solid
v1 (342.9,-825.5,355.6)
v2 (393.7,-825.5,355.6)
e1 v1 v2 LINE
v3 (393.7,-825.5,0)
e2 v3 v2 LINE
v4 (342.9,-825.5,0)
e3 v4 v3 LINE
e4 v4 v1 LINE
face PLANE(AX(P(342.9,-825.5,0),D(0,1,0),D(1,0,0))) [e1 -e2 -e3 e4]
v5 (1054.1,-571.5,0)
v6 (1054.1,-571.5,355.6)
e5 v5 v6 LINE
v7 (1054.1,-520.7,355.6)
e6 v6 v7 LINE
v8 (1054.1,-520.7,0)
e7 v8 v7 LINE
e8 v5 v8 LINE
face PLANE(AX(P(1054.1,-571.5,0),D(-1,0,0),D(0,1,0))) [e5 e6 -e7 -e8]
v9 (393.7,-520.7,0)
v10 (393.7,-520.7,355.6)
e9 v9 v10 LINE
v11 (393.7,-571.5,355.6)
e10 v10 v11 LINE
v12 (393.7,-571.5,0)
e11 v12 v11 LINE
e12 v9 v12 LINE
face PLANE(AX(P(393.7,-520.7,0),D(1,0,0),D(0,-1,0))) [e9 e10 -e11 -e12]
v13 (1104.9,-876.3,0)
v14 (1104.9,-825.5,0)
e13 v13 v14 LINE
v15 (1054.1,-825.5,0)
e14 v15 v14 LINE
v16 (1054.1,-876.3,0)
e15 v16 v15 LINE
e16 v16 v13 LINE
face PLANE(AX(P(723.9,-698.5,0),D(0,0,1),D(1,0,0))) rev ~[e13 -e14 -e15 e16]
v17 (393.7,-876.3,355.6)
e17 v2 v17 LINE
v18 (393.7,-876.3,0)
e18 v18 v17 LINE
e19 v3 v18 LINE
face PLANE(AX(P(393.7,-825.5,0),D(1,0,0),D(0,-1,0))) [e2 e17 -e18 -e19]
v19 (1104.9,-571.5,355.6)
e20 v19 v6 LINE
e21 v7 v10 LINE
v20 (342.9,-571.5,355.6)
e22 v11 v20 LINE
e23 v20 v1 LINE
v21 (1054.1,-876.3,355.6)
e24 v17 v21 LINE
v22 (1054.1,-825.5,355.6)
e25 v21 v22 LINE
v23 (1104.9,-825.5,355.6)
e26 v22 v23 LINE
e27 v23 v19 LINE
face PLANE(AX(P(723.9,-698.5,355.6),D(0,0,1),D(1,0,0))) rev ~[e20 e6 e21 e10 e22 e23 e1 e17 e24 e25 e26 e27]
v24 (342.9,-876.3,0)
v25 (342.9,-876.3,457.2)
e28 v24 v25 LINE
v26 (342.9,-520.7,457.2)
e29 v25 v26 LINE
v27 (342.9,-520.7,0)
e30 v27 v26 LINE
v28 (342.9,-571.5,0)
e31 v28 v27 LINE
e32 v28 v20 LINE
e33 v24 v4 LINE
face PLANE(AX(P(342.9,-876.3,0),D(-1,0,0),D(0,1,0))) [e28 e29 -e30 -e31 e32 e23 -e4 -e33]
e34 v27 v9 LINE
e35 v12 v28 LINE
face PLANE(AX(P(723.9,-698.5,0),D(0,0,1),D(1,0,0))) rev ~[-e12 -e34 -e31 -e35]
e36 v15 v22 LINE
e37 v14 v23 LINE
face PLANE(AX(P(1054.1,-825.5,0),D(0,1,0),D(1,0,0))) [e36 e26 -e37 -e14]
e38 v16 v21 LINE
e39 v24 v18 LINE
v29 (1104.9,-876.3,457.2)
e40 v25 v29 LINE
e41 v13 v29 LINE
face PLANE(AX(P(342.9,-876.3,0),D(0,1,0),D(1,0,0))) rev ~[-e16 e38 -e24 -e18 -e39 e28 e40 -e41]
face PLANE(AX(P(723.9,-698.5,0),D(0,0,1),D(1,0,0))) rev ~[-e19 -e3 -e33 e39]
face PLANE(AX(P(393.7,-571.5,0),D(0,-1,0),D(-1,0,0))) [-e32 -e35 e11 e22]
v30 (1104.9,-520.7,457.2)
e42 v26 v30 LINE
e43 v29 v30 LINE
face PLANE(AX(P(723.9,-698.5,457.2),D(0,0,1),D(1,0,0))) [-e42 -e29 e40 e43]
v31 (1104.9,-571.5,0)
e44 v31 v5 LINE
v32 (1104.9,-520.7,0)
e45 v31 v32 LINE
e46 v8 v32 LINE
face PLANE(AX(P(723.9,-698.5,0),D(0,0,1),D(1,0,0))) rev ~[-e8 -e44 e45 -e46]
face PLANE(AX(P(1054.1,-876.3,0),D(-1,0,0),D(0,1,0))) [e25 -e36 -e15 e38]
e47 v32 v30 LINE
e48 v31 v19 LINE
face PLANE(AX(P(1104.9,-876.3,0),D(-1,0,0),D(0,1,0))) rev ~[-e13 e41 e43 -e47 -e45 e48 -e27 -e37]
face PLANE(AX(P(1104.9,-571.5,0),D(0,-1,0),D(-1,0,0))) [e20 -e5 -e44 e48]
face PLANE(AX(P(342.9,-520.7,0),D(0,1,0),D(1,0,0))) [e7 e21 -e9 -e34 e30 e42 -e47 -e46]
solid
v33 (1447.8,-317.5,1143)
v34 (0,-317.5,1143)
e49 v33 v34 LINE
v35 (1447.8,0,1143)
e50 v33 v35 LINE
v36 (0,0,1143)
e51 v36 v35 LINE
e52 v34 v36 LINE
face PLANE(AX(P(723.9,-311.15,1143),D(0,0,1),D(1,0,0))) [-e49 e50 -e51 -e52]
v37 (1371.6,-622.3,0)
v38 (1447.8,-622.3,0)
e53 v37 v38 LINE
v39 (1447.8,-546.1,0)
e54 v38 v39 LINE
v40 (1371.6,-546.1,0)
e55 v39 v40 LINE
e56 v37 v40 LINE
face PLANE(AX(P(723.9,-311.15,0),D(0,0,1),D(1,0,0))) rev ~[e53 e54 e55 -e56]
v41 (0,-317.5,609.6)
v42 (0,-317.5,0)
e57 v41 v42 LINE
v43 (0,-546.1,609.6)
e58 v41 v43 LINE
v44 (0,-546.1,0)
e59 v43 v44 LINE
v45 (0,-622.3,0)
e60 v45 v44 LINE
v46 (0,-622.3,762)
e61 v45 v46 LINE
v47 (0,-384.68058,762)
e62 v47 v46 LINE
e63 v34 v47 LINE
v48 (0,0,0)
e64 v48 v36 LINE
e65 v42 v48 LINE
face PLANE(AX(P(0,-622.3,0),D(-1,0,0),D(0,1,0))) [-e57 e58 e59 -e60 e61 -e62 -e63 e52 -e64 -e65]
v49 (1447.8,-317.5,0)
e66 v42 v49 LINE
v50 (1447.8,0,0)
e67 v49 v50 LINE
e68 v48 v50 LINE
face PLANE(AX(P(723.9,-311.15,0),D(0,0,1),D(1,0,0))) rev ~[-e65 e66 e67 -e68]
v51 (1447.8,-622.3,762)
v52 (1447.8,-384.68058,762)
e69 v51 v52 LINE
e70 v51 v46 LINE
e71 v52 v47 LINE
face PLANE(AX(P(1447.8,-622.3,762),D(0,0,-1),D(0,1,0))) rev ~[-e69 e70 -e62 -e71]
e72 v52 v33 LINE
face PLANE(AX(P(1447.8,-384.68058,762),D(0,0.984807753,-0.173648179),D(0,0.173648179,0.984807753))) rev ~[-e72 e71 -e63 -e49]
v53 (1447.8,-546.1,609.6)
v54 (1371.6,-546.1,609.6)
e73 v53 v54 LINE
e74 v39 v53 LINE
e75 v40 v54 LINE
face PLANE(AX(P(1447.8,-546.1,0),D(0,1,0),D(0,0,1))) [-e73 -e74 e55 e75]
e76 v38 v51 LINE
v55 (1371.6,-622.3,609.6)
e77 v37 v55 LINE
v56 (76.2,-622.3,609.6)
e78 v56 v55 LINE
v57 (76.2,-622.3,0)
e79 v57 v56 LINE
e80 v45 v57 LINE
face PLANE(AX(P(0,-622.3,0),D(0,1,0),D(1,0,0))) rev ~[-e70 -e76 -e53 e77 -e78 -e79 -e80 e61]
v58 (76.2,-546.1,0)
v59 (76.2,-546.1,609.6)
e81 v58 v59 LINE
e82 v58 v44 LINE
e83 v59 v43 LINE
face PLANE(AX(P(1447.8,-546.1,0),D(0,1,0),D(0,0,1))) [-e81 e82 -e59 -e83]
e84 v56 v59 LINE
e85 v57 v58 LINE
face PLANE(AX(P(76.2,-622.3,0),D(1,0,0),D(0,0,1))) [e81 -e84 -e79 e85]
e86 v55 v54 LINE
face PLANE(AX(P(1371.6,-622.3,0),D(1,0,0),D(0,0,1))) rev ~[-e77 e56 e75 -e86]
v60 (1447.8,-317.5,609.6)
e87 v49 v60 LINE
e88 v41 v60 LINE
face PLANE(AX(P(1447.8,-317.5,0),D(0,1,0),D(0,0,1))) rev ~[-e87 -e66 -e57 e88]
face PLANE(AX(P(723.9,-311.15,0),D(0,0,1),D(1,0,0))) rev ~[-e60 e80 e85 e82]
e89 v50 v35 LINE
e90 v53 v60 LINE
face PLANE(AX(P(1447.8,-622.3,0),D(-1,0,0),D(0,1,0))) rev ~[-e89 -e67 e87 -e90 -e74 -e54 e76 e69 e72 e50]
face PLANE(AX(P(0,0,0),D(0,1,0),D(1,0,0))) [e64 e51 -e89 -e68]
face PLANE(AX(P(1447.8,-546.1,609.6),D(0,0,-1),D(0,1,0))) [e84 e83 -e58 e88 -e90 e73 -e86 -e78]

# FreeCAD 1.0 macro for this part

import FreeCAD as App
import Part
import Sketcher
Q = App.Units.Quantity


def add_polygon(sketch, points):
    """Adds a closed chain of lines whose ends are joined by coincident constraints."""
    first, n = sketch.GeometryCount, len(points)
    for a, b in zip(points, points[1:] + points[:1]):
        sketch.addGeometry(Part.LineSegment(App.Vector(*a, 0), App.Vector(*b, 0)), False)
    for i in range(n):
        sketch.addConstraint(Sketcher.Constraint("Coincident", first + i, 2, first + (i + 1) % n, 1))

doc = App.newDocument("Part")
params = doc.addObject("Spreadsheet::Sheet", "Params")
for row, (alias, value) in enumerate([
    ("sketch1_width", "57 in"),
    ("sketch1_height", "24.5 in"),
    ("pad1_length", "45 in"),
    ("sketch2_width", "12 in"),
    ("sketch2_height", "15 in"),
    ("sketch3_width", "51 in"),
    ("sketch3_height", "24 in"),
    ("pocket2_length", "12 in"),
    ("sketch4_width", "9 in"),
    ("sketch4_height", "24 in"),
    ("sketch5_width", "30 in"),
    ("sketch5_height", "14 in"),
    ("pad2_length", "18 in"),
    ("sketch6_width", "2 in"),
    ("sketch6_width2", "26 in"),
    ("sketch6_height", "10 in"),
    ("pocket4_length", "14 in"),
], start=1):
    params.set(f"A{row}", alias)
    params.set(f"B{row}", "=" + value)
    params.setAlias(f"B{row}", alias)

body = doc.addObject("PartDesign::Body", "Body")

sketch1 = doc.addObject("Sketcher::SketchObject", "Sketch")
body.addObject(sketch1)
sketch1.AttachmentSupport = (doc.XY_Plane, [""])
sketch1.MapMode = "FlatFace"
add_polygon(sketch1, [(0, 0), (0, -622), (1448, -622), (1448, 0)])
sketch1.addConstraint(Sketcher.Constraint("Vertical", 0))
sketch1.addConstraint(Sketcher.Constraint("Horizontal", 1))
sketch1.addConstraint(Sketcher.Constraint("Vertical", 2))
sketch1.addConstraint(Sketcher.Constraint("Horizontal", 3))
sketch1.addConstraint(Sketcher.Constraint("Coincident", 3, 2, -1, 1))
sketch1.addConstraint(Sketcher.Constraint("DistanceX", 1, 1, 1, 2, Q("57 in")))
sketch1.addConstraint(Sketcher.Constraint("DistanceY", 0, 2, 0, 1, Q("24.5 in")))
sketch1.setExpression("Constraints[9]", "Params.sketch1_width")
sketch1.setExpression("Constraints[10]", "Params.sketch1_height")
pad1 = doc.addObject("PartDesign::Pad", "Pad")
body.addObject(pad1)
pad1.Profile = sketch1
pad1.setExpression("Length", "Params.pad1_length")

sketch2 = doc.addObject("Sketcher::SketchObject", "Sketch001")
body.addObject(sketch2)
sketch2.AttachmentSupport = (doc.YZ_Plane, [""])
sketch2.MapMode = "FlatFace"
sketch2.AttachmentOffset = App.Placement(App.Vector(0, 0, 57 * 25.4), App.Rotation())
add_polygon(sketch2, [(-318, 1143), (-622, 1143), (-622, 762), (-385, 762)])
sketch2.addConstraint(Sketcher.Constraint("Horizontal", 0))
sketch2.addConstraint(Sketcher.Constraint("Vertical", 1))
sketch2.addConstraint(Sketcher.Constraint("Horizontal", 2))
sketch2.addConstraint(Sketcher.Constraint("DistanceX", 0, 2, 0, 1, Q("12 in")))
sketch2.addConstraint(Sketcher.Constraint("DistanceY", 1, 2, 1, 1, Q("15 in")))
sketch2.addConstraint(Sketcher.Constraint("DistanceY", -1, 1, 0, 2, Q("45 in")))
sketch2.addConstraint(Sketcher.Constraint("Angle", 3, Q("80 deg")))
sketch2.addConstraint(Sketcher.Constraint("DistanceX", 0, 2, -1, 1, Q("24.5 in")))
sketch2.setExpression("Constraints[7]", "Params.sketch2_width")
sketch2.setExpression("Constraints[8]", "Params.sketch2_height")
pocket1 = doc.addObject("PartDesign::Pocket", "Pocket")
body.addObject(pocket1)
pocket1.Profile = sketch2
pocket1.Type = "ThroughAll"

sketch3 = doc.addObject("Sketcher::SketchObject", "Sketch002")
body.addObject(sketch3)
sketch3.AttachmentSupport = (doc.XZ_Plane, [""])
sketch3.MapMode = "FlatFace"
sketch3.AttachmentOffset = App.Placement(App.Vector(0, 0, 24.5 * 25.4), App.Rotation())
add_polygon(sketch3, [(76, 610), (76, 0), (1372, 0), (1372, 610)])
sketch3.addConstraint(Sketcher.Constraint("Vertical", 0))
sketch3.addConstraint(Sketcher.Constraint("Horizontal", 1))
sketch3.addConstraint(Sketcher.Constraint("Vertical", 2))
sketch3.addConstraint(Sketcher.Constraint("Horizontal", 3))
sketch3.addConstraint(Sketcher.Constraint("PointOnObject", 0, 2, -1))
sketch3.addConstraint(Sketcher.Constraint("DistanceX", 1, 1, 1, 2, Q("51 in")))
sketch3.addConstraint(Sketcher.Constraint("DistanceY", 0, 2, 0, 1, Q("24 in")))
sketch3.addConstraint(Sketcher.Constraint("DistanceX", -1, 1, 0, 2, Q("3 in")))
sketch3.setExpression("Constraints[9]", "Params.sketch3_width")
sketch3.setExpression("Constraints[10]", "Params.sketch3_height")
pocket2 = doc.addObject("PartDesign::Pocket", "Pocket001")
body.addObject(pocket2)
pocket2.Profile = sketch3
pocket2.setExpression("Length", "Params.pocket2_length")

sketch4 = doc.addObject("Sketcher::SketchObject", "Sketch003")
body.addObject(sketch4)
sketch4.AttachmentSupport = (doc.YZ_Plane, [""])
sketch4.MapMode = "FlatFace"
sketch4.AttachmentOffset = App.Placement(App.Vector(0, 0, 57 * 25.4), App.Rotation())
add_polygon(sketch4, [(-546, 610), (-546, 0), (-318, 0), (-318, 610)])
sketch4.addConstraint(Sketcher.Constraint("Vertical", 0))
sketch4.addConstraint(Sketcher.Constraint("Horizontal", 1))
sketch4.addConstraint(Sketcher.Constraint("Vertical", 2))
sketch4.addConstraint(Sketcher.Constraint("Horizontal", 3))
sketch4.addConstraint(Sketcher.Constraint("PointOnObject", 0, 2, -1))
sketch4.addConstraint(Sketcher.Constraint("DistanceX", 1, 1, 1, 2, Q("9 in")))
sketch4.addConstraint(Sketcher.Constraint("DistanceY", 0, 2, 0, 1, Q("24 in")))
sketch4.addConstraint(Sketcher.Constraint("DistanceX", 0, 2, -1, 1, Q("21.5 in")))
sketch4.setExpression("Constraints[9]", "Params.sketch4_width")
sketch4.setExpression("Constraints[10]", "Params.sketch4_height")
pocket3 = doc.addObject("PartDesign::Pocket", "Pocket002")
body.addObject(pocket3)
pocket3.Profile = sketch4
pocket3.Type = "ThroughAll"
body2 = doc.addObject("PartDesign::Body", "Body001")

sketch5 = doc.addObject("Sketcher::SketchObject", "Sketch004")
body2.addObject(sketch5)
sketch5.AttachmentSupport = (doc.getObject("XY_Plane001"), [""])
sketch5.MapMode = "FlatFace"
add_polygon(sketch5, [(343, -521), (343, -876), (1105, -876), (1105, -521)])
sketch5.addConstraint(Sketcher.Constraint("Vertical", 0))
sketch5.addConstraint(Sketcher.Constraint("Horizontal", 1))
sketch5.addConstraint(Sketcher.Constraint("Vertical", 2))
sketch5.addConstraint(Sketcher.Constraint("Horizontal", 3))
sketch5.addConstraint(Sketcher.Constraint("DistanceX", 1, 1, 1, 2, Q("30 in")))
sketch5.addConstraint(Sketcher.Constraint("DistanceY", 0, 2, 0, 1, Q("14 in")))
sketch5.addConstraint(Sketcher.Constraint("DistanceX", -1, 1, 0, 2, Q("13.5 in")))
sketch5.addConstraint(Sketcher.Constraint("DistanceY", 0, 2, -1, 1, Q("34.5 in")))
sketch5.setExpression("Constraints[8]", "Params.sketch5_width")
sketch5.setExpression("Constraints[9]", "Params.sketch5_height")
pad2 = doc.addObject("PartDesign::Pad", "Pad001")
body2.addObject(pad2)
pad2.Profile = sketch5
pad2.setExpression("Length", "Params.pad2_length")

sketch6 = doc.addObject("Sketcher::SketchObject", "Sketch005")
body2.addObject(sketch6)
sketch6.AttachmentSupport = (doc.getObject("XY_Plane001"), [""])
sketch6.MapMode = "FlatFace"
add_polygon(sketch6, [(343, -572), (343, -826), (394, -826), (394, -876), (1054, -876), (1054, -826), (1105, -826), (1105, -572), (1054, -572), (1054, -521), (394, -521), (394, -572)])
sketch6.addConstraint(Sketcher.Constraint("Vertical", 0))
sketch6.addConstraint(Sketcher.Constraint("Horizontal", 1))
sketch6.addConstraint(Sketcher.Constraint("Vertical", 2))
sketch6.addConstraint(Sketcher.Constraint("Horizontal", 3))
sketch6.addConstraint(Sketcher.Constraint("Vertical", 4))
sketch6.addConstraint(Sketcher.Constraint("Horizontal", 5))
sketch6.addConstraint(Sketcher.Constraint("Vertical", 6))
sketch6.addConstraint(Sketcher.Constraint("Horizontal", 7))
sketch6.addConstraint(Sketcher.Constraint("Vertical", 8))
sketch6.addConstraint(Sketcher.Constraint("Horizontal", 9))
sketch6.addConstraint(Sketcher.Constraint("Vertical", 10))
sketch6.addConstraint(Sketcher.Constraint("Horizontal", 11))
sketch6.addConstraint(Sketcher.Constraint("Horizontal", 1, 2, 4, 2))
sketch6.addConstraint(Sketcher.Constraint("Horizontal", 7, 2, 10, 2))
sketch6.addConstraint(Sketcher.Constraint("Vertical", 4, 2, 7, 2))
sketch6.addConstraint(Sketcher.Constraint("Vertical", 2, 2, 9, 2))
sketch6.addConstraint(Sketcher.Constraint("Equal", 1, 5))
sketch6.addConstraint(Sketcher.Constraint("Equal", 11, 2))
sketch6.addConstraint(Sketcher.Constraint("Equal", 4, 8))
sketch6.addConstraint(Sketcher.Constraint("DistanceX", 1, 1, 1, 2, Q("2 in")))
sketch6.addConstraint(Sketcher.Constraint("DistanceX", 3, 1, 3, 2, Q("26 in")))
sketch6.addConstraint(Sketcher.Constraint("DistanceY", 0, 2, 0, 1, Q("10 in")))
sketch6.addConstraint(Sketcher.Constraint("DistanceX", -1, 1, 0, 2, Q("13.5 in")))
sketch6.addConstraint(Sketcher.Constraint("DistanceY", 0, 2, -1, 1, Q("32.5 in")))
sketch6.setExpression("Constraints[31]", "Params.sketch6_width")
sketch6.setExpression("Constraints[32]", "Params.sketch6_width2")
sketch6.setExpression("Constraints[33]", "Params.sketch6_height")
pocket4 = doc.addObject("PartDesign::Pocket", "Pocket003")
body2.addObject(pocket4)
pocket4.Profile = sketch6
pocket4.setExpression("Length", "Params.pocket4_length")
pocket4.Reversed = True

doc.recompute()
